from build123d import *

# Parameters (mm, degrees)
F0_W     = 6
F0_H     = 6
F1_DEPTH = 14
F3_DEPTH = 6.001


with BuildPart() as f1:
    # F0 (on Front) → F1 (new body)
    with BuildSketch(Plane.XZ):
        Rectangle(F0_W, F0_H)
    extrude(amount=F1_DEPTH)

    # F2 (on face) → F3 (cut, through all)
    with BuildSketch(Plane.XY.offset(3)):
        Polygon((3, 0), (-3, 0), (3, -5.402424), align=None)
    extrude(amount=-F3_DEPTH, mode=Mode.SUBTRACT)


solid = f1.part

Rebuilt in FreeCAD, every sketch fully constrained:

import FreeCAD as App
import Part
import Sketcher

V = App.Vector
Q = App.Units.Quantity


def add_polygon(sketch, points):
    """Adds a closed chain of lines whose ends are joined by coincident constraints."""
    first, n = sketch.GeometryCount, len(points)
    for a, b in zip(points, points[1:] + points[:1]):
        sketch.addGeometry(Part.LineSegment(App.Vector(*a, 0), App.Vector(*b, 0)), False)
    for i in range(n):
        sketch.addConstraint(Sketcher.Constraint("Coincident", first + i, 2, first + (i + 1) % n, 1))

doc = App.newDocument("Part")
body = doc.addObject("PartDesign::Body", "Body")

# Sketch on XZ plane
sketch1 = body.newObject("Sketcher::SketchObject", "Sketch")
sketch1.AttachmentSupport = (doc.getObject("XZ_Plane"), [""])
sketch1.MapMode = "FlatFace"
add_polygon(sketch1, [(-3, 3), (-3, -3), (3, -3), (3, 3)])  # lines 0-3
sketch1.addConstraint([
    Sketcher.Constraint("Vertical", 0),
    Sketcher.Constraint("Horizontal", 1),
    Sketcher.Constraint("Vertical", 2),
    Sketcher.Constraint("Horizontal", 3),
    Sketcher.Constraint("Symmetric", 0, 2, 2, 2, -1, 1),
    Sketcher.Constraint("Equal", 3, 0),
    Sketcher.Constraint("DistanceX", 1, 1, 1, 2, Q("6 mm")),
])
pad1 = body.newObject("PartDesign::Pad", "Pad")
pad1.Profile = sketch1
pad1.Length = 14

# Sketch on XY plane
sketch2 = body.newObject("Sketcher::SketchObject", "Sketch001")
sketch2.AttachmentSupport = (doc.getObject("XY_Plane"), [""])
sketch2.MapMode = "FlatFace"
sketch2.AttachmentOffset = App.Placement(V(0, 0, 3), App.Rotation())
add_polygon(sketch2, [(3, 0), (-3, 0), (3, -5.402424)])  # lines 0-2
sketch2.addConstraint([
    Sketcher.Constraint("Horizontal", 0),
    Sketcher.Constraint("Vertical", 2),
    Sketcher.Constraint("Symmetric", 0, 2, 2, 2, -1, 1),
    Sketcher.Constraint("DistanceX", 0, 2, 0, 1, Q("6 mm")),
    Sketcher.Constraint("Angle", 1, Q("-41.999999 deg")),
])
pocket1 = body.newObject("PartDesign::Pocket", "Pocket")
pocket1.Profile = sketch2
pocket1.Type = "ThroughAll"

doc.recompute()
